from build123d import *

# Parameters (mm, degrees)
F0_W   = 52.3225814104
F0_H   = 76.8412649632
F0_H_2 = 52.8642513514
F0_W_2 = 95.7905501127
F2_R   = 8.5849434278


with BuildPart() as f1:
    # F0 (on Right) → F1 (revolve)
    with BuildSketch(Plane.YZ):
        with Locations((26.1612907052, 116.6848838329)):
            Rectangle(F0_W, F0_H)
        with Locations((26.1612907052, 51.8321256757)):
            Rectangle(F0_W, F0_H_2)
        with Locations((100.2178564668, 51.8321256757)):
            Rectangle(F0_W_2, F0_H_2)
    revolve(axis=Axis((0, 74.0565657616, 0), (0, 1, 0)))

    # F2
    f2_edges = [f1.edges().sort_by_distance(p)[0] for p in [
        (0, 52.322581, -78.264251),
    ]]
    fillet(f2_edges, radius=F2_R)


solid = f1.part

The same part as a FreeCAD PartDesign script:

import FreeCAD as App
import Part
import Sketcher

V = App.Vector


def edges_at(feature, points):
    """Names of the edges that pass closest to the given points."""
    edges = feature.Shape.Edges
    near = lambda p: min(range(len(edges)), key=lambda i: edges[i].distToShape(Part.Vertex(*p))[0])
    return sorted({f"Edge{near(p) + 1}" for p in points})


def add_polygon(sketch, points):
    """Adds a closed chain of lines whose ends are joined by coincident constraints."""
    first, n = sketch.GeometryCount, len(points)
    for a, b in zip(points, points[1:] + points[:1]):
        sketch.addGeometry(Part.LineSegment(App.Vector(*a, 0), App.Vector(*b, 0)), False)
    for i in range(n):
        sketch.addConstraint(Sketcher.Constraint("Coincident", first + i, 2, first + (i + 1) % n, 1))

doc = App.newDocument("Part")
body = doc.addObject("PartDesign::Body", "Body")

sketch1 = body.newObject("Sketcher::SketchObject", "Sketch")
sketch1.AttachmentSupport = (doc.getObject("YZ_Plane"), [""])
sketch1.MapMode = "FlatFace"
add_polygon(sketch1, [(0, 155), (0, 25), (148, 25), (148, 78), (52, 78), (52, 155)])
sketch1.addConstraint([
    Sketcher.Constraint("Vertical", 0),
    Sketcher.Constraint("Horizontal", 1),
    Sketcher.Constraint("Vertical", 2),
    Sketcher.Constraint("Horizontal", 3),
    Sketcher.Constraint("Vertical", 4),
    Sketcher.Constraint("Horizontal", 5),
    Sketcher.Constraint("PointOnObject", 0, 2, -2),
    Sketcher.Constraint("DistanceY", -1, 1, 0, 2, 25.4),
    Sketcher.Constraint("DistanceX", 1, 1, 1, 2, 148.113132),
    Sketcher.Constraint("DistanceX", 3, 2, 3, 1, 95.79055),
    Sketcher.Constraint("DistanceY", 2, 1, 2, 2, 52.864251),
    Sketcher.Constraint("DistanceY", 0, 2, 0, 1, 129.705516),
])
revolution = body.newObject("PartDesign::Revolution", "Revolution")
revolution.Profile = sketch1
revolution.ReferenceAxis = (sketch1, ["H_Axis"])
revolution.Angle = 360
doc.recompute()

fillet = body.newObject("PartDesign::Fillet", "Fillet")
fillet.Base = (revolution, edges_at(revolution, [(0, 52.323, -78.264)]))
fillet.Radius = 8.584943

doc.recompute()
